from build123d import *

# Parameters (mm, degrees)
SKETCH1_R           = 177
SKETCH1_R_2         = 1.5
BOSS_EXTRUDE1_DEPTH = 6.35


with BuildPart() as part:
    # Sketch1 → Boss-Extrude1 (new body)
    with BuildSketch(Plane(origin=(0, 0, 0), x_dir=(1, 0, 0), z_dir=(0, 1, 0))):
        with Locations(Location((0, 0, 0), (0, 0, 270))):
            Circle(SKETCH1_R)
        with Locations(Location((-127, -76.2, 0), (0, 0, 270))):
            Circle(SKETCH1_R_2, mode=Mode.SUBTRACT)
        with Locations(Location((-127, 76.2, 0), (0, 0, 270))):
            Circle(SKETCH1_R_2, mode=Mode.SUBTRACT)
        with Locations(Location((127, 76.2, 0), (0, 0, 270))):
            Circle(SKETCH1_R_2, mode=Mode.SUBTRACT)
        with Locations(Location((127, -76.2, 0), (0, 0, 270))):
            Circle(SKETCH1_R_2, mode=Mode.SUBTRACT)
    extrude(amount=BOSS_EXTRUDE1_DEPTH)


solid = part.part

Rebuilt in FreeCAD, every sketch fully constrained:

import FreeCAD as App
import Part
import Sketcher

V = App.Vector

doc = App.newDocument("Part")
params = doc.addObject("Spreadsheet::Sheet", "Params")
for row, (alias, value) in enumerate([
    ("sketch1_diameter", "354 mm"),
    ("sketch1_diameter2", "3 mm"),
    ("pad1_length", "6.35 mm"),
], start=1):
    params.set(f"A{row}", alias)
    params.set(f"B{row}", "=" + value)
    params.setAlias(f"B{row}", alias)

body = doc.addObject("PartDesign::Body", "Body")

# Sketch on XZ plane
sketch1 = body.newObject("Sketcher::SketchObject", "Sketch")
sketch1.AttachmentSupport = (doc.getObject("XZ_Plane"), [""])
sketch1.MapMode = "FlatFace"
sketch1.addGeometry([
    Part.Circle(V(0, 0, 0), V(0, 0, 1), 177),  # 0
    Part.Circle(V(-127, -76.2, 0), V(0, 0, 1), 1.5),  # 1
    Part.Circle(V(-127, 76.2, 0), V(0, 0, 1), 1.5),  # 2
    Part.Circle(V(127, -76.2, 0), V(0, 0, 1), 1.5),  # 3
    Part.Circle(V(127, 76.2, 0), V(0, 0, 1), 1.5),  # 4
], False)
sketch1.addConstraint([
    Sketcher.Constraint("Coincident", 0, 3, -1, 1),
    Sketcher.Constraint("Equal", 1, 2),
    Sketcher.Constraint("Equal", 2, 3),
    Sketcher.Constraint("Equal", 3, 4),
    Sketcher.Constraint("Symmetric", 2, 3, 3, 3, -1, 1),
    Sketcher.Constraint("Symmetric", 1, 3, 4, 3, -1, 1),
    Sketcher.Constraint("Symmetric", 1, 3, 3, 3, -2),
    Sketcher.Constraint("Diameter", 0, 354.0),
    Sketcher.Constraint("Diameter", 1, 3.0),
    Sketcher.Constraint("DistanceX", 1, 3, -1, 1, 127.0),
    Sketcher.Constraint("DistanceY", 1, 3, -1, 1, 76.2),
])
sketch1.setExpression("Constraints[7]", "Params.sketch1_diameter")
sketch1.setExpression("Constraints[8]", "Params.sketch1_diameter2")
pad1 = body.newObject("PartDesign::Pad", "Pad")
pad1.Profile = sketch1
pad1.setExpression("Length", "Params.pad1_length")
pad1.Reversed = True

doc.recompute()
